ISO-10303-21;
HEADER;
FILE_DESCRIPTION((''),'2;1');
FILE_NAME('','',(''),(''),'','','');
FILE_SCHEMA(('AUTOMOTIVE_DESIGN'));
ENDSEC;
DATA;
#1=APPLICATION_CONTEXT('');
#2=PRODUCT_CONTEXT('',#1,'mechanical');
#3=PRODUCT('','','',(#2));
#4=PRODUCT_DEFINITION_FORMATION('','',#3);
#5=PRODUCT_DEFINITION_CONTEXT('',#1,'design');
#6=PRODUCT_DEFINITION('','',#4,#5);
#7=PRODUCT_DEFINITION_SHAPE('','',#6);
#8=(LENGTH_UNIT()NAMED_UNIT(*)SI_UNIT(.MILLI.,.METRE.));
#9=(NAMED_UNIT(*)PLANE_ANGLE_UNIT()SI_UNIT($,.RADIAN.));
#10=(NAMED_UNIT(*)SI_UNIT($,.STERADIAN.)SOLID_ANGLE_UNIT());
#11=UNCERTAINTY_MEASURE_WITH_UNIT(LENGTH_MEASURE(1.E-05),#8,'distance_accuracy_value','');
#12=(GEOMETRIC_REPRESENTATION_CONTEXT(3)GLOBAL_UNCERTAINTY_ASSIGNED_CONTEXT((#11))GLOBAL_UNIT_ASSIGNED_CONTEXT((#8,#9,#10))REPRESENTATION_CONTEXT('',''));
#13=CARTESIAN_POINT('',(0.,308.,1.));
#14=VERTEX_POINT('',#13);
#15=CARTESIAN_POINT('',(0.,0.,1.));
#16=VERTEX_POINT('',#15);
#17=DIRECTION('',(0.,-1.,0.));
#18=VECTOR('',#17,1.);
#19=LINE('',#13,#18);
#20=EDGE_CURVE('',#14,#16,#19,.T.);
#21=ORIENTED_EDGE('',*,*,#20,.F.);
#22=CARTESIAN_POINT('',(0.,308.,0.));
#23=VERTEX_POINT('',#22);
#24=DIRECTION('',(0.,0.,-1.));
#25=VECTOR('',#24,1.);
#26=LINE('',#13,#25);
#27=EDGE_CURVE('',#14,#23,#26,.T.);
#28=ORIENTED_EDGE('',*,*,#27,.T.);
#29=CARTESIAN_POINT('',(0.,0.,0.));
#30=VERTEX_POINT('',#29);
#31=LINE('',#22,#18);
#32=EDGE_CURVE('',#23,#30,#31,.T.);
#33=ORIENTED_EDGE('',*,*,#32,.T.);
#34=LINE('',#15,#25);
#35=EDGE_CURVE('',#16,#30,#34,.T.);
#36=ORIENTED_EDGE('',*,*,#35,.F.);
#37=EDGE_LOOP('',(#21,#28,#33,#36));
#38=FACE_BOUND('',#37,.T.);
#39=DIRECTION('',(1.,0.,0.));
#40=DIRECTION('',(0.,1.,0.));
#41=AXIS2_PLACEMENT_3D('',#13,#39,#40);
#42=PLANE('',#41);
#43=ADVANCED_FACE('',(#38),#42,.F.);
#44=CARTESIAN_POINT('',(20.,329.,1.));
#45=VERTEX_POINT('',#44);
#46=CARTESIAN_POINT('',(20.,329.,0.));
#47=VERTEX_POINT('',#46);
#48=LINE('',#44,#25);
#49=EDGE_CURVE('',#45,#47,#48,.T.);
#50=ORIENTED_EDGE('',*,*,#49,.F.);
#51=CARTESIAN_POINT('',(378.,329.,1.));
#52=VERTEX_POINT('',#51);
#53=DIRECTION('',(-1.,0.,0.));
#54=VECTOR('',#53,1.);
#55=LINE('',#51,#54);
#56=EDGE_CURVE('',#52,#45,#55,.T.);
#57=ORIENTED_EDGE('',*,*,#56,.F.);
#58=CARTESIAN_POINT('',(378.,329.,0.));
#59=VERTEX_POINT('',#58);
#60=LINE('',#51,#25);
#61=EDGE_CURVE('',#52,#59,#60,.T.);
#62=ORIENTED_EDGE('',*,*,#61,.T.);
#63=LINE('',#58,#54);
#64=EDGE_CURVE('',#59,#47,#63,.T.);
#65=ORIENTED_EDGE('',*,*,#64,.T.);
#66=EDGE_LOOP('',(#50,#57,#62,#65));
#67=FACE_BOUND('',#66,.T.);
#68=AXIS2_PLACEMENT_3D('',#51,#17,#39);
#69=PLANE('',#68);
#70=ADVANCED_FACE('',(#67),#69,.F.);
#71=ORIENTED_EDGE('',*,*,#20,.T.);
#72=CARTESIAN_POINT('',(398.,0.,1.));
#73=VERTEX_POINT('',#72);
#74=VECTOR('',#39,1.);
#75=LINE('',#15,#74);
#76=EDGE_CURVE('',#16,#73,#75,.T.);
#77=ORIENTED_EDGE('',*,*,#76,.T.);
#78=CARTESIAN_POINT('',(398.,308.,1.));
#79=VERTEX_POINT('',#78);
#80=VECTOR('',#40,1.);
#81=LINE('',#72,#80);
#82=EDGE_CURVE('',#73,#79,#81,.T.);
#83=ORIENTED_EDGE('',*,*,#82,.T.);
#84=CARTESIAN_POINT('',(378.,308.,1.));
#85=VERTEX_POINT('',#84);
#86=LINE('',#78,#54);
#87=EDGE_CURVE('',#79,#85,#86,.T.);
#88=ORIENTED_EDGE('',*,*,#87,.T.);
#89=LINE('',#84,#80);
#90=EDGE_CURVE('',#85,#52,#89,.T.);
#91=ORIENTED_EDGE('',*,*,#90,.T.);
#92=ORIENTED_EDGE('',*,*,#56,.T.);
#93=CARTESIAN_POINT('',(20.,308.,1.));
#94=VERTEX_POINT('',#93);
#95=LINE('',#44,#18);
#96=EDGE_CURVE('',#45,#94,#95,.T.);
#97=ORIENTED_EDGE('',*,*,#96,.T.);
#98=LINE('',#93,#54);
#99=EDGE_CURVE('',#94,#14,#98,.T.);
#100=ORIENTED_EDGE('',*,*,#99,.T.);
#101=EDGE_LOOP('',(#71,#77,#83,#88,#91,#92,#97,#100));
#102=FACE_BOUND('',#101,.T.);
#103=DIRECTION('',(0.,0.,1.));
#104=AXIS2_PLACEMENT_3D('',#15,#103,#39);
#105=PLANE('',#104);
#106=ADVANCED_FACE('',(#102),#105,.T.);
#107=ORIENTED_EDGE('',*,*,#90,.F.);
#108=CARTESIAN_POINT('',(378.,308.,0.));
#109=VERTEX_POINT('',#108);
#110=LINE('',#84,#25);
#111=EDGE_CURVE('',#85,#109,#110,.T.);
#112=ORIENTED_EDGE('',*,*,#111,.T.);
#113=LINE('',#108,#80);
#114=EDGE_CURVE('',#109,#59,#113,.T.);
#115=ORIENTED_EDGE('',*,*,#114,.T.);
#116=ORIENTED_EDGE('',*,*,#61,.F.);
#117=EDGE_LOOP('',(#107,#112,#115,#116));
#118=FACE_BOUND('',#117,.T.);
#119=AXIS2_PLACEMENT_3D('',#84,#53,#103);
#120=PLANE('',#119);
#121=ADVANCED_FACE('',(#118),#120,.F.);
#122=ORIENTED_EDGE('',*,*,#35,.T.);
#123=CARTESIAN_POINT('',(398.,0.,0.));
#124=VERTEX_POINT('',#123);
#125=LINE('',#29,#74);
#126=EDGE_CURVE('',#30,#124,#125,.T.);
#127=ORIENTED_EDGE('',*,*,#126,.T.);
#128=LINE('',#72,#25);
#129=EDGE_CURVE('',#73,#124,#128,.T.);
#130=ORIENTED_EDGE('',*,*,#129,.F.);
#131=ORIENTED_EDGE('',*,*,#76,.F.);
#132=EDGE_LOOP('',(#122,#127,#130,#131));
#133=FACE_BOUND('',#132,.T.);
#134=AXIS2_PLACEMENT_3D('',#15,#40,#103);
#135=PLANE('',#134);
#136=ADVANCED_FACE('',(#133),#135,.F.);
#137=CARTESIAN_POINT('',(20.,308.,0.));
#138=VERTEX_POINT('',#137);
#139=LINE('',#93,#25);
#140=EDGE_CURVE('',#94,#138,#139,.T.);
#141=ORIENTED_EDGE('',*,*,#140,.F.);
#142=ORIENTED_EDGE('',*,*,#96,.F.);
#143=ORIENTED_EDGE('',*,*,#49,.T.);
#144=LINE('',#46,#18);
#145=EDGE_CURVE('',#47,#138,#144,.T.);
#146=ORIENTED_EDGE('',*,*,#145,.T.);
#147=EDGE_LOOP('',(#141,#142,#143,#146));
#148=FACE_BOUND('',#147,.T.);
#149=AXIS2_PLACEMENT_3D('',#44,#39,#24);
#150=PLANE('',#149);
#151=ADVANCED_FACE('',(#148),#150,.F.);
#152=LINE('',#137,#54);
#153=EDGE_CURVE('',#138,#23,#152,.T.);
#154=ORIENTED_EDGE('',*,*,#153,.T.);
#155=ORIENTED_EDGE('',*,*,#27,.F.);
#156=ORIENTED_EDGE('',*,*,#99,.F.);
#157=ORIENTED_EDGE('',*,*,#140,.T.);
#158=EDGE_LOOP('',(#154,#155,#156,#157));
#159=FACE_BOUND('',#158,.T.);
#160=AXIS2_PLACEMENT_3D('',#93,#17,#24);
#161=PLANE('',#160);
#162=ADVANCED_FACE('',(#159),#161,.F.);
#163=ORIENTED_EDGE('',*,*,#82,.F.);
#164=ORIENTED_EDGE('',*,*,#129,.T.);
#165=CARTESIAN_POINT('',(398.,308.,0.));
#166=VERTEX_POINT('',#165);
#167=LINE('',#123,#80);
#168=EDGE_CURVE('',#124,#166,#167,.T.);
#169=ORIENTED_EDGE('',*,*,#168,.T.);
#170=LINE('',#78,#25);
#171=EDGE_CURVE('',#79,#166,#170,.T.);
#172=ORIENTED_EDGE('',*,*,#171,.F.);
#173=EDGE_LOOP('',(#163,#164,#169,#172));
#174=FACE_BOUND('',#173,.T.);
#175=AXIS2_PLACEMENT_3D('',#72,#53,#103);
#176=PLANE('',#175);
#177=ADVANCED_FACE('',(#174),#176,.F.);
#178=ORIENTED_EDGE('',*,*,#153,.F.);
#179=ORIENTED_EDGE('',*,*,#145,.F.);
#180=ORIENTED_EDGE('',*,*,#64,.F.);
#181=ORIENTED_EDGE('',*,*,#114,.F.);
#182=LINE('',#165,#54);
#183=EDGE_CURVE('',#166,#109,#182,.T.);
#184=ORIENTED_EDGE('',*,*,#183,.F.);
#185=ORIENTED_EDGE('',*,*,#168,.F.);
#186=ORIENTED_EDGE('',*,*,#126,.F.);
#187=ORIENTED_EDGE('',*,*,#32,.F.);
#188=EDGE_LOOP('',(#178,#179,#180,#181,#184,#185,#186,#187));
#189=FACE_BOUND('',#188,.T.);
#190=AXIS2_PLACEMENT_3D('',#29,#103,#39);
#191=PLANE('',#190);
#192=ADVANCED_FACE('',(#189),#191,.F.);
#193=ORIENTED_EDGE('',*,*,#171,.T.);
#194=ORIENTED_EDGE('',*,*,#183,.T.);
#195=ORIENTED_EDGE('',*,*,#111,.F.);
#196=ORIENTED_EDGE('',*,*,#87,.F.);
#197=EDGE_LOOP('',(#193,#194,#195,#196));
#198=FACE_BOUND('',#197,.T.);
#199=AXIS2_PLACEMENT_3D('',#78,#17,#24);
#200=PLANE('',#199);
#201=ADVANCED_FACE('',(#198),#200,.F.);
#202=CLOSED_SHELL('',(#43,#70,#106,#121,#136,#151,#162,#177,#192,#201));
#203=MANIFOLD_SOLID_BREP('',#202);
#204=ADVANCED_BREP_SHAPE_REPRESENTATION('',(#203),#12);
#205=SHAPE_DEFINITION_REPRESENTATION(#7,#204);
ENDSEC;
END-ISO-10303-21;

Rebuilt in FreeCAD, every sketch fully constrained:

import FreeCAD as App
import Part
import Sketcher
from FreeCAD import Vector

doc = App.newDocument("Part")
body = doc.addObject("PartDesign::Body", "Body")

# Sketch on XY plane
sketch1 = body.newObject("Sketcher::SketchObject", "Sketch")
sketch1.AttachmentSupport = (doc.getObject("XY_Plane"), [""])
sketch1.MapMode = "FlatFace"
sketch1.addGeometry([
    Part.LineSegment(Vector(0, 0, 0), Vector(398, 0, 0)),  # 0
    Part.LineSegment(Vector(398, 0, 0), Vector(398, 308, 0)),  # 1
    Part.LineSegment(Vector(398, 308, 0), Vector(378, 308, 0)),  # 2
    Part.LineSegment(Vector(378, 308, 0), Vector(378, 329, 0)),  # 3
    Part.LineSegment(Vector(378, 329, 0), Vector(20, 329, 0)),  # 4
    Part.LineSegment(Vector(20, 329, 0), Vector(20, 308, 0)),  # 5
    Part.LineSegment(Vector(20, 308, 0), Vector(0, 308, 0)),  # 6
    Part.LineSegment(Vector(0, 308, 0), Vector(0, 0, 0)),  # 7
], False)
sketch1.addConstraint([
    Sketcher.Constraint("Coincident", 0, 2, 1, 1),
    Sketcher.Constraint("Coincident", 1, 2, 2, 1),
    Sketcher.Constraint("Coincident", 2, 2, 3, 1),
    Sketcher.Constraint("Coincident", 3, 2, 4, 1),
    Sketcher.Constraint("Coincident", 4, 2, 5, 1),
    Sketcher.Constraint("Coincident", 5, 2, 6, 1),
    Sketcher.Constraint("Coincident", 6, 2, 7, 1),
    Sketcher.Constraint("Coincident", 7, 2, 0, 1),
    Sketcher.Constraint("Horizontal", 0),
    Sketcher.Constraint("Vertical", 1),
    Sketcher.Constraint("Horizontal", 2),
    Sketcher.Constraint("Vertical", 3),
    Sketcher.Constraint("Horizontal", 4),
    Sketcher.Constraint("Vertical", 5),
    Sketcher.Constraint("Horizontal", 6),
    Sketcher.Constraint("Vertical", 7),
    Sketcher.Constraint("Coincident", 7, 2, -1, 1),
    Sketcher.Constraint("Horizontal", 2, 2, 5, 2),
    Sketcher.Constraint("Equal", 2, 6),
    Sketcher.Constraint("DistanceX", 0, 1, 0, 2, 398.0),
    Sketcher.Constraint("DistanceX", 2, 2, 2, 1, 20.0),
    Sketcher.Constraint("DistanceY", 1, 1, 1, 2, 308.0),
    Sketcher.Constraint("DistanceY", 3, 1, 3, 2, 21.0),
])
pad1 = body.newObject("PartDesign::Pad", "Pad")
pad1.Profile = sketch1
pad1.Length = 1

doc.recompute()
